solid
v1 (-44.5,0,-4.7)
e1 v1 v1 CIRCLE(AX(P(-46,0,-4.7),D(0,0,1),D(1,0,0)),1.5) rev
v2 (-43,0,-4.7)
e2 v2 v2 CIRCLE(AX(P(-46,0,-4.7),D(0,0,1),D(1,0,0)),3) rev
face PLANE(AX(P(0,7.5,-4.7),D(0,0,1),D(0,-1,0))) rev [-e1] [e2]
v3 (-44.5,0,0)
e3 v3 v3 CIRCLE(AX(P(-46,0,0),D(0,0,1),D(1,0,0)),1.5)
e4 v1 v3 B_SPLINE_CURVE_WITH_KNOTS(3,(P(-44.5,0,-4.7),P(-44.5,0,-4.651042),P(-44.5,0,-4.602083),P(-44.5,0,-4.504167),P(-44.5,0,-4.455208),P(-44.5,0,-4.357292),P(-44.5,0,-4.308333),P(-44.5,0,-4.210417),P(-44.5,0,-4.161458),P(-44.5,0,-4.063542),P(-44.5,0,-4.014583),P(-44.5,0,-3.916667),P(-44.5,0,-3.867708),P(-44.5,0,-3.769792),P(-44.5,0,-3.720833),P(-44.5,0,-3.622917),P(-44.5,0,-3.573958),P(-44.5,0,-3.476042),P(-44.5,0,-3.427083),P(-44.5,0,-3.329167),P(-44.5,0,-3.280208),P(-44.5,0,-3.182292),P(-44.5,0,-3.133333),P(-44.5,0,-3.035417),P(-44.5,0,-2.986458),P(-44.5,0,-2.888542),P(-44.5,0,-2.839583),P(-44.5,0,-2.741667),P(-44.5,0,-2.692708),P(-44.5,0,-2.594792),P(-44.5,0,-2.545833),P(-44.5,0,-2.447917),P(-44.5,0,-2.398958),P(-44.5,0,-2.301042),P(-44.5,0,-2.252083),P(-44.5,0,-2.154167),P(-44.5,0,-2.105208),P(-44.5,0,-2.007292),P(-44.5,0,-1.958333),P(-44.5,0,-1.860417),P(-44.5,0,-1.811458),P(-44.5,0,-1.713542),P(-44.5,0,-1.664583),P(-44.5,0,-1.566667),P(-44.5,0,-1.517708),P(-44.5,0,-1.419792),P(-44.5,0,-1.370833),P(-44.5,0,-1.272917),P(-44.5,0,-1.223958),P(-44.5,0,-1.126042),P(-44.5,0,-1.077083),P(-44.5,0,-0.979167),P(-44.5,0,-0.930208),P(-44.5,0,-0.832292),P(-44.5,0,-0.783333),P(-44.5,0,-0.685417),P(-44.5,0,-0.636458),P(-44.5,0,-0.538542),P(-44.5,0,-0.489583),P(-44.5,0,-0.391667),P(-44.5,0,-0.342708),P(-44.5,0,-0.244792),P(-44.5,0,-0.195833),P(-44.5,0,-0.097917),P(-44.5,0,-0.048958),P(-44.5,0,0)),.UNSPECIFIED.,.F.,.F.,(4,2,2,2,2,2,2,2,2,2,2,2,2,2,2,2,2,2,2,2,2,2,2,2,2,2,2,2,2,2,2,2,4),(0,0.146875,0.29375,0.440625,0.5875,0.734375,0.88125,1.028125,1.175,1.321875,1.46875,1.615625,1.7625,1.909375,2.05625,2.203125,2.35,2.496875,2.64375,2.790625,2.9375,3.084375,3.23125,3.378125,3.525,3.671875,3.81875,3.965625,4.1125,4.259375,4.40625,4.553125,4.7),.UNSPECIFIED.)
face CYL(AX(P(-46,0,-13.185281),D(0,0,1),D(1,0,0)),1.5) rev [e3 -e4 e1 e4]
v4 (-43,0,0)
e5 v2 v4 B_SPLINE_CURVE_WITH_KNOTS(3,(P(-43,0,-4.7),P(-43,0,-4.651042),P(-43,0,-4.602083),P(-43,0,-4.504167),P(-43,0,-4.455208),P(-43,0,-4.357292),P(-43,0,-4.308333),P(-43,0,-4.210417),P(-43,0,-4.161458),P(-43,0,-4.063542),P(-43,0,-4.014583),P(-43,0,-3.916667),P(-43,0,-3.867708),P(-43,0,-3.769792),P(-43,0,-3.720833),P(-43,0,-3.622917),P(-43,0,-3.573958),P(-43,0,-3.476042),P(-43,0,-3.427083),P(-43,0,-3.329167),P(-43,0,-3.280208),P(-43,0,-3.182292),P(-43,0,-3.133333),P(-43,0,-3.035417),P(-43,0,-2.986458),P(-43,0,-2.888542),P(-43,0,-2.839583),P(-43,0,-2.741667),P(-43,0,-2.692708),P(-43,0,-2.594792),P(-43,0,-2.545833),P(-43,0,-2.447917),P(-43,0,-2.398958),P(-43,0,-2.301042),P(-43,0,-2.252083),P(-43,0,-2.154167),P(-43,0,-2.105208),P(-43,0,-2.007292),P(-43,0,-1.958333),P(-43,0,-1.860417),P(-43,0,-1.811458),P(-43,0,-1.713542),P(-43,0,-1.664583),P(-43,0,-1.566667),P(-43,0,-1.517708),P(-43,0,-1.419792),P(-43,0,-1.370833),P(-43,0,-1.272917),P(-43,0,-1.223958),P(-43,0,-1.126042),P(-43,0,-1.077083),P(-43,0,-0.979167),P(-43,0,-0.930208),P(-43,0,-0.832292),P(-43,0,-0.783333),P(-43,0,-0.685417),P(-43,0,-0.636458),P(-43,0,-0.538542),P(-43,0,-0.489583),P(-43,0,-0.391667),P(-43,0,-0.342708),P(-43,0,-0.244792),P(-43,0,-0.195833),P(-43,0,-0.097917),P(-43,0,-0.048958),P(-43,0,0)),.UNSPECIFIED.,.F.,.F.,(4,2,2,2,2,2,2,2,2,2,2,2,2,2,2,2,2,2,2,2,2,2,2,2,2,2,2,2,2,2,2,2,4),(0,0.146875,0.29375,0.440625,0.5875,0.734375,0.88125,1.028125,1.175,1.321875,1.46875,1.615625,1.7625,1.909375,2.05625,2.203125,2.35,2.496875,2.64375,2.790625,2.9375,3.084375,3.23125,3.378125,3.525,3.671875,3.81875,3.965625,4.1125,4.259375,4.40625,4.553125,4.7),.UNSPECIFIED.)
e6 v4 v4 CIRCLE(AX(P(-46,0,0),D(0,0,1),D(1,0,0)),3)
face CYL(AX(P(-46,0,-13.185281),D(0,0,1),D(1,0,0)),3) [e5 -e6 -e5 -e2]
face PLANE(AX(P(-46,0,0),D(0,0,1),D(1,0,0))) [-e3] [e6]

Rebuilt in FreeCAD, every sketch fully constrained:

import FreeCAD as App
import Part
import Sketcher
Q = App.Units.Quantity

doc = App.newDocument("Part")
params = doc.addObject("Spreadsheet::Sheet", "Params")
for row, (alias, value) in enumerate([
    ("sketch1_diameter", "6 mm"),
    ("sketch1_diameter2", "3 mm"),
    ("pad1_length", "4.7 mm"),
], start=1):
    params.set(f"A{row}", alias)
    params.set(f"B{row}", "=" + value)
    params.setAlias(f"B{row}", alias)

body = doc.addObject("PartDesign::Body", "Body")

# Sketch on XY plane
sketch1 = doc.addObject("Sketcher::SketchObject", "Sketch")
body.addObject(sketch1)
sketch1.AttachmentSupport = (doc.XY_Plane, [""])
sketch1.MapMode = "FlatFace"
sketch1.addGeometry([
    Part.Circle(App.Vector(-46, 0, 0), App.Vector(0, 0, 1), 3),
    Part.Circle(App.Vector(-46, 0, 0), App.Vector(0, 0, 1), 1.5),
], False)
sketch1.addConstraint([
    Sketcher.Constraint("Coincident", 1, 3, 0, 3),
    Sketcher.Constraint("PointOnObject", 0, 3, -1),
    Sketcher.Constraint("Diameter", 0, Q("6 mm")),
    Sketcher.Constraint("Diameter", 1, Q("3 mm")),
    Sketcher.Constraint("DistanceX", 0, 3, -1, 1, Q("46 mm")),
])
sketch1.setExpression("Constraints[2]", "Params.sketch1_diameter")
sketch1.setExpression("Constraints[3]", "Params.sketch1_diameter2")
pad1 = doc.addObject("PartDesign::Pad", "Pad")
body.addObject(pad1)
pad1.Profile = sketch1
pad1.setExpression("Length", "Params.pad1_length")
pad1.Reversed = True

doc.recompute()
